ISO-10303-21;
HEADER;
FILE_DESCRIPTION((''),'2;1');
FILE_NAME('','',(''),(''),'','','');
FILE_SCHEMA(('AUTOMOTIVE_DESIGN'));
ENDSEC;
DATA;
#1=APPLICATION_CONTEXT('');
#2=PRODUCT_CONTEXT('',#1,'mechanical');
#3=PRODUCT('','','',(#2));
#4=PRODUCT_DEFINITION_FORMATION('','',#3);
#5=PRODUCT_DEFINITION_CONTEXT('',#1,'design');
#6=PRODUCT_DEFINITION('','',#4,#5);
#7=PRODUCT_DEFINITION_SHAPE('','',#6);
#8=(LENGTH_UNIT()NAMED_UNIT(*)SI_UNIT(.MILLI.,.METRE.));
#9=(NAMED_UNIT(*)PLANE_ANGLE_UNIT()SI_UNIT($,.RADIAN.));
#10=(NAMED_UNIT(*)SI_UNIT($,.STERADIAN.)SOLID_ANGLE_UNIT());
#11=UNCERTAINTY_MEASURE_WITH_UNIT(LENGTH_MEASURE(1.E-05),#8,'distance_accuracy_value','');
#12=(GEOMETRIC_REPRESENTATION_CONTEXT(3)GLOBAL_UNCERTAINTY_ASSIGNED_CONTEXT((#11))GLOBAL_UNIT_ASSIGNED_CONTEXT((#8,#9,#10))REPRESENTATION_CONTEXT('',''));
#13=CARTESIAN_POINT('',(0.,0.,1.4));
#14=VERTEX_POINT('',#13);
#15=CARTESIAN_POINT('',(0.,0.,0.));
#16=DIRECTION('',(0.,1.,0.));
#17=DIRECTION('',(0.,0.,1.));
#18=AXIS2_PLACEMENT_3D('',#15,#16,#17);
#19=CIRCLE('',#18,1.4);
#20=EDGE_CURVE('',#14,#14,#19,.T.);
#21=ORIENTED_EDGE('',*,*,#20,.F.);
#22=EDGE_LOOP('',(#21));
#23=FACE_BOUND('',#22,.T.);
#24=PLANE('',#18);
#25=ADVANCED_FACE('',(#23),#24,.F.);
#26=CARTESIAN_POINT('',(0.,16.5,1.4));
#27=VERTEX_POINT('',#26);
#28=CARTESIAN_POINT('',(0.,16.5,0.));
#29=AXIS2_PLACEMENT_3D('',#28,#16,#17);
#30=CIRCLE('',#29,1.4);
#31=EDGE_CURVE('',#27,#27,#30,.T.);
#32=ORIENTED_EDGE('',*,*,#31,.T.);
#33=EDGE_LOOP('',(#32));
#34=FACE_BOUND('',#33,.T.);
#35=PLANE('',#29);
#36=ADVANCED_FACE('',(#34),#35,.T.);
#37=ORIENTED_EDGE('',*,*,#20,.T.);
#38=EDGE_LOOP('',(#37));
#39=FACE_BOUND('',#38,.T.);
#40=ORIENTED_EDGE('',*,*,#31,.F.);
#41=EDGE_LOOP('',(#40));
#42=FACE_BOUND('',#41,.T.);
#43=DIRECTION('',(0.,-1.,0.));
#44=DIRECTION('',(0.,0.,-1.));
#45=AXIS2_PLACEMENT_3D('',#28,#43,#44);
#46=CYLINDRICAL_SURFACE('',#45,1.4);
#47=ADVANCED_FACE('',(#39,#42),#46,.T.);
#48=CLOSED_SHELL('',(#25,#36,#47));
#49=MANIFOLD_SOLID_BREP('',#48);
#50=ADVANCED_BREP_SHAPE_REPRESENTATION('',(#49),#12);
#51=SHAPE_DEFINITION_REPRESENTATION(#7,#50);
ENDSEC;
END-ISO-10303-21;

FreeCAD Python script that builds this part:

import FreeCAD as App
import Part
import Sketcher
from FreeCAD import Vector

doc = App.newDocument("Part")
body = doc.addObject("PartDesign::Body", "Body")

# Sketch on XZ plane
sketch1 = body.newObject("Sketcher::SketchObject", "Sketch")
sketch1.AttachmentSupport = (doc.getObject("XZ_Plane"), [""])
sketch1.MapMode = "FlatFace"
sketch1.addGeometry(Part.Circle(Vector(0, 0, 0), Vector(0, 0, 1), 1.4), False)
sketch1.addConstraint([
    Sketcher.Constraint("Coincident", 0, 3, -1, 1),
    Sketcher.Constraint("Diameter", 0, 2.8),
])
pad1 = body.newObject("PartDesign::Pad", "Pad")
pad1.Profile = sketch1
pad1.Length = 16.5
pad1.Reversed = True

doc.recompute()
